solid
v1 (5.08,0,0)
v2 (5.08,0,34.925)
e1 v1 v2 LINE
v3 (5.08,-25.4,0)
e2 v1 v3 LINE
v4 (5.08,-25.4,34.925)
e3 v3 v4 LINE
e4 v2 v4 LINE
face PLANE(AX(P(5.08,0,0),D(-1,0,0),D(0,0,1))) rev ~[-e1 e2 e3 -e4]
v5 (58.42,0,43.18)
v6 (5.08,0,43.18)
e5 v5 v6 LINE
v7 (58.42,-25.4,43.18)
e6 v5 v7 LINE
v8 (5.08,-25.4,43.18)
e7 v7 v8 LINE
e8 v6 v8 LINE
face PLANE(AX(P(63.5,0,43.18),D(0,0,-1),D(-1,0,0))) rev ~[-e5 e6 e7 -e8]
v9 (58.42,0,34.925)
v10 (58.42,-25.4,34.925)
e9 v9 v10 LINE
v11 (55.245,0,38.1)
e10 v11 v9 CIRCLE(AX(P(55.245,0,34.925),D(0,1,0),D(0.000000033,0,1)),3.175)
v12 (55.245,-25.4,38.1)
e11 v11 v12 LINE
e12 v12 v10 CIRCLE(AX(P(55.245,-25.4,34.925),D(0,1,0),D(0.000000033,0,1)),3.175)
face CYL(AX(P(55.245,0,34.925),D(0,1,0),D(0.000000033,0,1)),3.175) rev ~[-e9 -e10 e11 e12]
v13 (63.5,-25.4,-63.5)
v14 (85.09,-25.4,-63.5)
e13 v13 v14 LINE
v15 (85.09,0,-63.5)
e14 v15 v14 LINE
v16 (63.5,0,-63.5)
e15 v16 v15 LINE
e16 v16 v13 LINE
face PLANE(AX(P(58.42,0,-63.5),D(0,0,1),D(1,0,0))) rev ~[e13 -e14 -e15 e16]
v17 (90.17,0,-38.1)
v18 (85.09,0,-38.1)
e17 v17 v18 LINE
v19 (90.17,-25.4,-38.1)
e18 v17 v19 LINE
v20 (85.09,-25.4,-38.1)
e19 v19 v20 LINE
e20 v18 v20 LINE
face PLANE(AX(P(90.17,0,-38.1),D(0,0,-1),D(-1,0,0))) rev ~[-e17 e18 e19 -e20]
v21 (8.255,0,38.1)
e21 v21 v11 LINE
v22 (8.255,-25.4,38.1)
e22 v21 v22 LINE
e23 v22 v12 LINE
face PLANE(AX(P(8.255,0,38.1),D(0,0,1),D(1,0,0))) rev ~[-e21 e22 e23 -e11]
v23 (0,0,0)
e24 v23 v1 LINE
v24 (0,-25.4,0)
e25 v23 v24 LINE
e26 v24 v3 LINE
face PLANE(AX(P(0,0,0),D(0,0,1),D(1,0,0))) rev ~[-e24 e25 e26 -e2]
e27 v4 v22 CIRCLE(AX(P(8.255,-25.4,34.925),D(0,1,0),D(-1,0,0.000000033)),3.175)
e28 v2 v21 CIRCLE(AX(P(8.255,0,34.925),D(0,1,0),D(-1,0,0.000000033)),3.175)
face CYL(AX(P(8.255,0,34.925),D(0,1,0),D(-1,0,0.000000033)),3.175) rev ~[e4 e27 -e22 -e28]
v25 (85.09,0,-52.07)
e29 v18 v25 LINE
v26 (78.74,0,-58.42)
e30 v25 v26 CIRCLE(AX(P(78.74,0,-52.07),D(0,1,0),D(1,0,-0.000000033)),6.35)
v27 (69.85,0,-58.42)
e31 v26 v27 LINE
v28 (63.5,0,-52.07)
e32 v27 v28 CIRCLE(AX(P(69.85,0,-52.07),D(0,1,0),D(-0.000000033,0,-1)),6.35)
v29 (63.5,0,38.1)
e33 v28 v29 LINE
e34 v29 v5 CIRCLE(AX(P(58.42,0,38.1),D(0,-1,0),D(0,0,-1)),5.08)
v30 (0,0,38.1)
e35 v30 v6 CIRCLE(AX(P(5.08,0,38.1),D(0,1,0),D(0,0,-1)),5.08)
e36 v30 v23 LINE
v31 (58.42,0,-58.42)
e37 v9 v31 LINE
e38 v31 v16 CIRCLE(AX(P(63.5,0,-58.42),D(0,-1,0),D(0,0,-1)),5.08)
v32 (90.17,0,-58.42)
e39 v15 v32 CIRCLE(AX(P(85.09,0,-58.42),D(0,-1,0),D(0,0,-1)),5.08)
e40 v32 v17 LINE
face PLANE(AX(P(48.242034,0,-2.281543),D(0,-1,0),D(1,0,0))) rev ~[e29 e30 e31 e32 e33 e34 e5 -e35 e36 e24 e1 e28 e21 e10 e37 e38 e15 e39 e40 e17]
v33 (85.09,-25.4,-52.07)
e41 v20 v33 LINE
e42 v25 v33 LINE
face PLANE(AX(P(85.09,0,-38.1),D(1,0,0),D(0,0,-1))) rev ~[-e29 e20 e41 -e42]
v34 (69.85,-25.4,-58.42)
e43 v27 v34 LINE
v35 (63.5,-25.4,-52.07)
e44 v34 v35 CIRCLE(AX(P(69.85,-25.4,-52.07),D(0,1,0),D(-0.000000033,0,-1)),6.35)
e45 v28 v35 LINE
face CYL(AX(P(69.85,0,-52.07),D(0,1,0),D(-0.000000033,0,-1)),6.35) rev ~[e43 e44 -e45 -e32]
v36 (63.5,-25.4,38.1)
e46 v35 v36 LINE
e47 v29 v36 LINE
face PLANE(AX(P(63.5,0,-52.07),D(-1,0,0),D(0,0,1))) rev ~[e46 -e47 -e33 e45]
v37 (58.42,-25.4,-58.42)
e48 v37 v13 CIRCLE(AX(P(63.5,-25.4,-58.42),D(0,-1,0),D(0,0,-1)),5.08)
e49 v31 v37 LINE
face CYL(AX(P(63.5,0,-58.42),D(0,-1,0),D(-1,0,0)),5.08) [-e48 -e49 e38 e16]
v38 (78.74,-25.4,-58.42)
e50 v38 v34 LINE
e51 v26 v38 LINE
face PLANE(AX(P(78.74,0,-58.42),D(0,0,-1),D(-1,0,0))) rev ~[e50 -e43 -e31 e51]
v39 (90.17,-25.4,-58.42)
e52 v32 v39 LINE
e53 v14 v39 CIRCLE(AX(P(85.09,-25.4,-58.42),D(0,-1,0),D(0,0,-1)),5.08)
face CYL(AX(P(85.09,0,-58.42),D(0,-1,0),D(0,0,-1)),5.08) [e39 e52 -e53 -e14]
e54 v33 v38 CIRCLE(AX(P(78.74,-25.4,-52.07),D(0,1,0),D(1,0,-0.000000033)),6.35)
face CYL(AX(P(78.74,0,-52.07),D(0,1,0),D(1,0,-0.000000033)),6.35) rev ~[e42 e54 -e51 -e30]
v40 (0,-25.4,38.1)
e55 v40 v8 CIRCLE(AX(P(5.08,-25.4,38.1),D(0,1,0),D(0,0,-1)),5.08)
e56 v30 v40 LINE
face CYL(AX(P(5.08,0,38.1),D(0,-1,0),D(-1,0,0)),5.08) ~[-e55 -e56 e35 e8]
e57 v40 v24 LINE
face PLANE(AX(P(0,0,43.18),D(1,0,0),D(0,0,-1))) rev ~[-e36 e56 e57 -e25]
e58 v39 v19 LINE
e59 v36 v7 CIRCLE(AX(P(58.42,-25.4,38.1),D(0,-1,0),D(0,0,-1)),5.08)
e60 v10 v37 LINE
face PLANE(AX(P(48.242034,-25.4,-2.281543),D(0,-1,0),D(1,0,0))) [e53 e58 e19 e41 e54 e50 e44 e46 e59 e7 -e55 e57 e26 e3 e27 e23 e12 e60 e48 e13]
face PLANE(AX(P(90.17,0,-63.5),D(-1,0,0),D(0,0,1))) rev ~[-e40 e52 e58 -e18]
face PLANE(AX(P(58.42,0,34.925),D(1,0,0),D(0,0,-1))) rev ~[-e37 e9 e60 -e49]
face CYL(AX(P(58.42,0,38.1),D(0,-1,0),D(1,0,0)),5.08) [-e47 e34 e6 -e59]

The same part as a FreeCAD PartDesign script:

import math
import FreeCAD as App
import Part
import Sketcher
from FreeCAD import Vector
Q = App.Units.Quantity


def edges_at(feature, points):
    """Names of the edges that pass closest to the given points."""
    edges = feature.Shape.Edges
    near = lambda p: min(range(len(edges)), key=lambda i: edges[i].distToShape(Part.Vertex(*p))[0])
    return sorted({f"Edge{near(p) + 1}" for p in points})

doc = App.newDocument("Part")
body = doc.addObject("PartDesign::Body", "Body")

sketch1 = body.newObject("Sketcher::SketchObject", "Sketch")
sketch1.AttachmentSupport = (doc.getObject("XZ_Plane"), [""])
sketch1.MapMode = "FlatFace"
sketch1.addGeometry(Part.LineSegment(Vector(0, 43.2, 0), Vector(0, 0, 0)), False)
sketch1.addGeometry(Part.LineSegment(Vector(0, 0, 0), Vector(5.1, 0, 0)), False)
sketch1.addGeometry(Part.LineSegment(Vector(5.1, 0, 0), Vector(5.1, 34.9, 0)), False)
sketch1.addGeometry(Part.ArcOfCircle(Part.Circle(Vector(8.3, 34.9, 0), Vector(0, 0, 1), 3.2), math.radians(90), math.radians(180)), False)
sketch1.addGeometry(Part.LineSegment(Vector(8.3, 38.1, 0), Vector(55.2, 38.1, 0)), False)
sketch1.addGeometry(Part.ArcOfCircle(Part.Circle(Vector(55.2, 34.9, 0), Vector(0, 0, 1), 3.2), math.radians(0), math.radians(90)), False)
sketch1.addGeometry(Part.LineSegment(Vector(58.4, 34.9, 0), Vector(58.4, -63.5, 0)), False)
sketch1.addGeometry(Part.LineSegment(Vector(58.4, -63.5, 0), Vector(90.2, -63.5, 0)), False)
sketch1.addGeometry(Part.LineSegment(Vector(90.2, -63.5, 0), Vector(90.2, -38.1, 0)), False)
sketch1.addGeometry(Part.LineSegment(Vector(90.2, -38.1, 0), Vector(85.1, -38.1, 0)), False)
sketch1.addGeometry(Part.LineSegment(Vector(85.1, -38.1, 0), Vector(85.1, -52.1, 0)), False)
sketch1.addGeometry(Part.ArcOfCircle(Part.Circle(Vector(78.7, -52.1, 0), Vector(0, 0, 1), 6.4), math.radians(-90), math.radians(0)), False)
sketch1.addGeometry(Part.LineSegment(Vector(78.7, -58.4, 0), Vector(69.8, -58.4, 0)), False)
sketch1.addGeometry(Part.ArcOfCircle(Part.Circle(Vector(69.9, -52.1, 0), Vector(0, 0, 1), 6.4), math.radians(-180), math.radians(-90)), False)
sketch1.addGeometry(Part.LineSegment(Vector(63.5, -52.1, 0), Vector(63.5, 43.2, 0)), False)
sketch1.addGeometry(Part.LineSegment(Vector(63.5, 43.2, 0), Vector(0, 43.2, 0)), False)
sketch1.addConstraint(Sketcher.Constraint("Coincident", 0, 2, 1, 1))
sketch1.addConstraint(Sketcher.Constraint("Coincident", 1, 2, 2, 1))
sketch1.addConstraint(Sketcher.Constraint("Tangent", 2, 2, 3, 2))
sketch1.addConstraint(Sketcher.Constraint("Tangent", 3, 1, 4, 1))
sketch1.addConstraint(Sketcher.Constraint("Tangent", 4, 2, 5, 2))
sketch1.addConstraint(Sketcher.Constraint("Tangent", 5, 1, 6, 1))
sketch1.addConstraint(Sketcher.Constraint("Coincident", 6, 2, 7, 1))
sketch1.addConstraint(Sketcher.Constraint("Coincident", 7, 2, 8, 1))
sketch1.addConstraint(Sketcher.Constraint("Coincident", 8, 2, 9, 1))
sketch1.addConstraint(Sketcher.Constraint("Coincident", 9, 2, 10, 1))
sketch1.addConstraint(Sketcher.Constraint("Tangent", 10, 2, 11, 2))
sketch1.addConstraint(Sketcher.Constraint("Tangent", 11, 1, 12, 1))
sketch1.addConstraint(Sketcher.Constraint("Tangent", 12, 2, 13, 2))
sketch1.addConstraint(Sketcher.Constraint("Tangent", 13, 1, 14, 1))
sketch1.addConstraint(Sketcher.Constraint("Coincident", 14, 2, 15, 1))
sketch1.addConstraint(Sketcher.Constraint("Coincident", 15, 2, 0, 1))
sketch1.addConstraint(Sketcher.Constraint("Vertical", 0))
sketch1.addConstraint(Sketcher.Constraint("Horizontal", 1))
sketch1.addConstraint(Sketcher.Constraint("Vertical", 2))
sketch1.addConstraint(Sketcher.Constraint("Horizontal", 4))
sketch1.addConstraint(Sketcher.Constraint("Vertical", 6))
sketch1.addConstraint(Sketcher.Constraint("Horizontal", 7))
sketch1.addConstraint(Sketcher.Constraint("Vertical", 8))
sketch1.addConstraint(Sketcher.Constraint("Horizontal", 9))
sketch1.addConstraint(Sketcher.Constraint("Vertical", 10))
sketch1.addConstraint(Sketcher.Constraint("Horizontal", 12))
sketch1.addConstraint(Sketcher.Constraint("Vertical", 14))
sketch1.addConstraint(Sketcher.Constraint("Horizontal", 15))
sketch1.addConstraint(Sketcher.Constraint("Coincident", 0, 2, -1, 1))
sketch1.addConstraint(Sketcher.Constraint("Equal", 3, 5))
sketch1.addConstraint(Sketcher.Constraint("Equal", 11, 13))
sketch1.addConstraint(Sketcher.Constraint("Equal", 1, 9))
sketch1.addConstraint(Sketcher.Constraint("DistanceY", 8, 1, 8, 2, Q("1 in")))
sketch1.addConstraint(Sketcher.Constraint("Radius", 11, Q("0.25 in")))
sketch1.addConstraint(Sketcher.Constraint("DistanceX", 1, 1, 1, 2, Q("0.2 in")))
sketch1.addConstraint(Sketcher.Constraint("DistanceX", 15, 2, 15, 1, Q("2.5 in")))
sketch1.addConstraint(Sketcher.Constraint("DistanceY", 0, 2, 0, 1, Q("1.7 in")))
sketch1.addConstraint(Sketcher.Constraint("Radius", 3, Q("0.125 in")))
sketch1.addConstraint(Sketcher.Constraint("DistanceX", 4, 1, 4, 2, Q("1.85 in")))
sketch1.addConstraint(Sketcher.Constraint("DistanceX", 7, 1, 7, 2, Q("1.25 in")))
sketch1.addConstraint(Sketcher.Constraint("DistanceY", 10, 2, 10, 1, Q("0.55 in")))
sketch1.addConstraint(Sketcher.Constraint("DistanceY", 14, 1, 14, 2, Q("3.75 in")))
sketch1.addConstraint(Sketcher.Constraint("DistanceY", -1, 1, 3, 1, Q("1.5 in")))
pad1 = body.newObject("PartDesign::Pad", "Pad")
pad1.Profile = sketch1
pad1.Length = Q("1 in")
doc.recompute()

fillet = body.newObject("PartDesign::Fillet", "Fillet")
fillet.Base = (pad1, edges_at(pad1, [
    (0, -12.7, 43.18),
    (63.5, -12.7, 43.18),
    (90.17, -12.7, -63.5),
    (58.42, -12.7, -63.5),
]))
fillet.Radius = Q("0.2 in")

doc.recompute()
